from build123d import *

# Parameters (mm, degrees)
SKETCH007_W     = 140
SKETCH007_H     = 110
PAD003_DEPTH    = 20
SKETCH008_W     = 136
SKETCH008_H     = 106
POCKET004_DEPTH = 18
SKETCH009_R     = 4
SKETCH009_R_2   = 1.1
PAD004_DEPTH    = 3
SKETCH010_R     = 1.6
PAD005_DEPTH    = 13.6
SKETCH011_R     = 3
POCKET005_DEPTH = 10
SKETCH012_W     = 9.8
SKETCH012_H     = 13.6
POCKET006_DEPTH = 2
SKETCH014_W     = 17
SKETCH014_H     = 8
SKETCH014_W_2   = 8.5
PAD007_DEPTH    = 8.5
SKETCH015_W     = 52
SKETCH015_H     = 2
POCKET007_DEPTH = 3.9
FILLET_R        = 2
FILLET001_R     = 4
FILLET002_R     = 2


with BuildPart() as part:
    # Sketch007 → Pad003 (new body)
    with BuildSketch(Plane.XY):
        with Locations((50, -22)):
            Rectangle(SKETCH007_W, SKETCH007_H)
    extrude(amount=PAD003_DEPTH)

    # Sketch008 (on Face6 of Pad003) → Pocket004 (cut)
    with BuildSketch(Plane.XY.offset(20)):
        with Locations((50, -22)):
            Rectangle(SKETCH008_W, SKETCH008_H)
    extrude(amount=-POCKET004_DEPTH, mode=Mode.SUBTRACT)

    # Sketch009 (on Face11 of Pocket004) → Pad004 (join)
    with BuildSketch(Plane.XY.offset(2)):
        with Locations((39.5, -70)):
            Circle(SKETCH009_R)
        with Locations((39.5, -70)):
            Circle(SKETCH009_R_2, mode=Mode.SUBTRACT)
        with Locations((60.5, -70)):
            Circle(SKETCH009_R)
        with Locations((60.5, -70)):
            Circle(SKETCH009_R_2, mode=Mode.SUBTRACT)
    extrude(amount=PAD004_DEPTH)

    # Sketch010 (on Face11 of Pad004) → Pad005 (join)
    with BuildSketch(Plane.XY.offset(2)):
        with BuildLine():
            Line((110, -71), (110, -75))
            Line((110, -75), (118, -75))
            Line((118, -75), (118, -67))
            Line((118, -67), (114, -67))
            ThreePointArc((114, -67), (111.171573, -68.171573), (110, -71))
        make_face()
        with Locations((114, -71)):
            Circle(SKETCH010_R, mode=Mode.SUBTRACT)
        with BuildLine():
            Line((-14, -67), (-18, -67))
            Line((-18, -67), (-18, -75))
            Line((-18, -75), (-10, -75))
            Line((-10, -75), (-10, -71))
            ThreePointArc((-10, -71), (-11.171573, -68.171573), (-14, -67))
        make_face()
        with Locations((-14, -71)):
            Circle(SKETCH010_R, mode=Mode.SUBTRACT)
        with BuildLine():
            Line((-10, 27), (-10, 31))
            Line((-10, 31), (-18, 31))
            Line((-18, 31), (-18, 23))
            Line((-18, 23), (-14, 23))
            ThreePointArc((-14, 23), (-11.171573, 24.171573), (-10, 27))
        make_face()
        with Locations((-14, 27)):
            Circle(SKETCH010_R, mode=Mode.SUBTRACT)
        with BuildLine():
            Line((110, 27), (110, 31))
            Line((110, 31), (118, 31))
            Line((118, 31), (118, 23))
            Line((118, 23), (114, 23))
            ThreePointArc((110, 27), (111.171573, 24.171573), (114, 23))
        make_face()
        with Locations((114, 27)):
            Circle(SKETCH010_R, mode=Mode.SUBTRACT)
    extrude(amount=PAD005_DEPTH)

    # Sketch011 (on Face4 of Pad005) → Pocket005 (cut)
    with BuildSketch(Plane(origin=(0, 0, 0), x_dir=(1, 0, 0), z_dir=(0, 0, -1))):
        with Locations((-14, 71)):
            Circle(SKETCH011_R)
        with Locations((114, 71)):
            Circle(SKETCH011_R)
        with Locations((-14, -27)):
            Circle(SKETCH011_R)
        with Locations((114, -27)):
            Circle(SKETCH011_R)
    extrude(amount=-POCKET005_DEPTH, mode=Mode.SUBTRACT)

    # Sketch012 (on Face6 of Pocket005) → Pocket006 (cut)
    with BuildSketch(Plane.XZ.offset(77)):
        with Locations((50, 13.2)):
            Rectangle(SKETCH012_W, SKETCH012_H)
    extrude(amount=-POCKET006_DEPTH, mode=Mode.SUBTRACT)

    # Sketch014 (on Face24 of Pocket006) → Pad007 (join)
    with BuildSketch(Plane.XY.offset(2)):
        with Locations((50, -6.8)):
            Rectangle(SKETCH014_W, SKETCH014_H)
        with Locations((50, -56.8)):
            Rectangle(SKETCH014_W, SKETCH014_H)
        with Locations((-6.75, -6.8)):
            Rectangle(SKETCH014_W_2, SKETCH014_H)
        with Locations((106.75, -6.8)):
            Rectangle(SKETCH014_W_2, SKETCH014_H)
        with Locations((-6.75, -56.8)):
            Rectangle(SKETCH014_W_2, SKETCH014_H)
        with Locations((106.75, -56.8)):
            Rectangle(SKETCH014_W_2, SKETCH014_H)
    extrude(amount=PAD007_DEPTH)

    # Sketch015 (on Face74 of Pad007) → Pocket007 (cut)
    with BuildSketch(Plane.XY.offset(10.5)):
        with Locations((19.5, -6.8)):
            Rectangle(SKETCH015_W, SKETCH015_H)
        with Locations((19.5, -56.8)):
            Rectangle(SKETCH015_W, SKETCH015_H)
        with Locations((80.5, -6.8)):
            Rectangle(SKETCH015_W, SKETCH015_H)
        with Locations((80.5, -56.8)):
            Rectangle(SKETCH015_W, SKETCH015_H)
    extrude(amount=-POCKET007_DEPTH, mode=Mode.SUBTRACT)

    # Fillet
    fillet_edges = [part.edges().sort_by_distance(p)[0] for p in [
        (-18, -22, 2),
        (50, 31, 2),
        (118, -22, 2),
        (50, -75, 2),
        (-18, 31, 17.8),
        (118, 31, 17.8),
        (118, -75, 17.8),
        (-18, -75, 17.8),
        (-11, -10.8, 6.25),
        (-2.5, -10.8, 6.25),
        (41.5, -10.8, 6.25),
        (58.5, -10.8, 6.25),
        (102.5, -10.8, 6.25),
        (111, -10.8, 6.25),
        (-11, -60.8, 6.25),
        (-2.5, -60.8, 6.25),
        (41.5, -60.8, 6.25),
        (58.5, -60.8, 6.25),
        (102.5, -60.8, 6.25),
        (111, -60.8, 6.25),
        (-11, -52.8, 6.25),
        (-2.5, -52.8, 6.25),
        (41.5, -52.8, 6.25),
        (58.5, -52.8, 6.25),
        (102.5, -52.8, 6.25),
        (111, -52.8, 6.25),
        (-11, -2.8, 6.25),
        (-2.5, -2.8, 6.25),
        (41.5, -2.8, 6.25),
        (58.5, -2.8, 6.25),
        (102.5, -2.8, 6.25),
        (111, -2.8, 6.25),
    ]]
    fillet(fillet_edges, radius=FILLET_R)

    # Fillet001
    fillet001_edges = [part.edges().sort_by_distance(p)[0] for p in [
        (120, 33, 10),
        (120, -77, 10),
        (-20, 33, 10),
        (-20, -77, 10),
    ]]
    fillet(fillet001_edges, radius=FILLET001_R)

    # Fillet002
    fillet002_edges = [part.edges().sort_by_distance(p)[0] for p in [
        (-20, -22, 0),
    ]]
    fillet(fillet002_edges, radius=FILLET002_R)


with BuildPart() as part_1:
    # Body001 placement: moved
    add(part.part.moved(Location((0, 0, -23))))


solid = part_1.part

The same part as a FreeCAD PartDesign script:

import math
import FreeCAD as App
import Part
import Sketcher

V = App.Vector
Q = App.Units.Quantity


def edges_at(feature, points):
    """Names of the edges that pass closest to the given points."""
    edges = feature.Shape.Edges
    near = lambda p: min(range(len(edges)), key=lambda i: edges[i].distToShape(Part.Vertex(*p))[0])
    return sorted({f"Edge{near(p) + 1}" for p in points})

doc = App.newDocument("Part")
body = doc.addObject("PartDesign::Body", "Body")

# Sketch on XY plane
sketch1 = body.newObject("Sketcher::SketchObject", "Sketch")
sketch1.AttachmentSupport = (doc.getObject("XY_Plane"), [""])
sketch1.MapMode = "FlatFace"
sketch1.addGeometry(Part.LineSegment(V(-20, 33, 0), V(-20, -77, 0)), False)
sketch1.addGeometry(Part.LineSegment(V(-20, -77, 0), V(120, -77, 0)), False)
sketch1.addGeometry(Part.LineSegment(V(120, -77, 0), V(120, 33, 0)), False)
sketch1.addGeometry(Part.LineSegment(V(120, 33, 0), V(-20, 33, 0)), False)
sketch1.addConstraint(Sketcher.Constraint("Coincident", 0, 2, 1, 1))
sketch1.addConstraint(Sketcher.Constraint("Coincident", 1, 2, 2, 1))
sketch1.addConstraint(Sketcher.Constraint("Coincident", 2, 2, 3, 1))
sketch1.addConstraint(Sketcher.Constraint("Coincident", 3, 2, 0, 1))
sketch1.addConstraint(Sketcher.Constraint("Vertical", 0))
sketch1.addConstraint(Sketcher.Constraint("Horizontal", 1))
sketch1.addConstraint(Sketcher.Constraint("Vertical", 2))
sketch1.addConstraint(Sketcher.Constraint("Horizontal", 3))
sketch1.addConstraint(Sketcher.Constraint("DistanceX", 1, 1, 1, 2, Q("140 mm")))
sketch1.addConstraint(Sketcher.Constraint("DistanceY", 0, 2, 0, 1, Q("110 mm")))
sketch1.addConstraint(Sketcher.Constraint("DistanceX", 0, 2, -1, 1, Q("20 mm")))
sketch1.addConstraint(Sketcher.Constraint("DistanceY", 0, 2, -1, 1, Q("77 mm")))
pad1 = body.newObject("PartDesign::Pad", "Pad")
pad1.Profile = sketch1
pad1.Length = 20

# Sketch on XY plane
sketch2 = body.newObject("Sketcher::SketchObject", "Sketch001")
sketch2.AttachmentSupport = (doc.getObject("XY_Plane"), [""])
sketch2.MapMode = "FlatFace"
sketch2.AttachmentOffset = App.Placement(V(0, 0, 20), App.Rotation())
sketch2.addGeometry(Part.LineSegment(V(-18, 31, 0), V(-18, -75, 0)), False)
sketch2.addGeometry(Part.LineSegment(V(-18, -75, 0), V(118, -75, 0)), False)
sketch2.addGeometry(Part.LineSegment(V(118, -75, 0), V(118, 31, 0)), False)
sketch2.addGeometry(Part.LineSegment(V(118, 31, 0), V(-18, 31, 0)), False)
sketch2.addConstraint(Sketcher.Constraint("Coincident", 0, 2, 1, 1))
sketch2.addConstraint(Sketcher.Constraint("Coincident", 1, 2, 2, 1))
sketch2.addConstraint(Sketcher.Constraint("Coincident", 2, 2, 3, 1))
sketch2.addConstraint(Sketcher.Constraint("Coincident", 3, 2, 0, 1))
sketch2.addConstraint(Sketcher.Constraint("Vertical", 0))
sketch2.addConstraint(Sketcher.Constraint("Horizontal", 1))
sketch2.addConstraint(Sketcher.Constraint("Vertical", 2))
sketch2.addConstraint(Sketcher.Constraint("Horizontal", 3))
sketch2.addConstraint(Sketcher.Constraint("DistanceX", 1, 1, 1, 2, Q("136 mm")))
sketch2.addConstraint(Sketcher.Constraint("DistanceY", 0, 2, 0, 1, Q("106 mm")))
sketch2.addConstraint(Sketcher.Constraint("DistanceX", 0, 2, -1, 1, Q("18 mm")))
sketch2.addConstraint(Sketcher.Constraint("DistanceY", 0, 2, -1, 1, Q("75 mm")))
pocket1 = body.newObject("PartDesign::Pocket", "Pocket")
pocket1.Profile = sketch2
pocket1.Length = 18

# Sketch on XY plane
sketch3 = body.newObject("Sketcher::SketchObject", "Sketch002")
sketch3.AttachmentSupport = (doc.getObject("XY_Plane"), [""])
sketch3.MapMode = "FlatFace"
sketch3.AttachmentOffset = App.Placement(V(0, 0, 2), App.Rotation())
sketch3.addGeometry(Part.Circle(V(39.5, -70, 0), V(0, 0, 1), 4), False)
sketch3.addGeometry(Part.Circle(V(39.5, -70, 0), V(0, 0, 1), 1.1), False)
sketch3.addGeometry(Part.Circle(V(60.5, -70, 0), V(0, 0, 1), 4), False)
sketch3.addGeometry(Part.Circle(V(60.5, -70, 0), V(0, 0, 1), 1.1), False)
sketch3.addConstraint(Sketcher.Constraint("Coincident", 1, 3, 0, 3))
sketch3.addConstraint(Sketcher.Constraint("Coincident", 3, 3, 2, 3))
sketch3.addConstraint(Sketcher.Constraint("Equal", 0, 2))
sketch3.addConstraint(Sketcher.Constraint("Equal", 1, 3))
sketch3.addConstraint(Sketcher.Constraint("Horizontal", 1, 3, 2, 3))
sketch3.addConstraint(Sketcher.Constraint("Diameter", 0, Q("8 mm")))
sketch3.addConstraint(Sketcher.Constraint("Diameter", 1, Q("2.2 mm")))
sketch3.addConstraint(Sketcher.Constraint("DistanceY", 0, 3, -1, 1, Q("70 mm")))
sketch3.addConstraint(Sketcher.Constraint("DistanceX", 0, 3, 2, 3, Q("21 mm")))
sketch3.addConstraint(Sketcher.Constraint("DistanceX", -1, 1, 0, 3, Q("39.5 mm")))
pad2 = body.newObject("PartDesign::Pad", "Pad001")
pad2.Profile = sketch3
pad2.Length = 3

# Sketch on XY plane
sketch4 = body.newObject("Sketcher::SketchObject", "Sketch003")
sketch4.AttachmentSupport = (doc.getObject("XY_Plane"), [""])
sketch4.MapMode = "FlatFace"
sketch4.AttachmentOffset = App.Placement(V(0, 0, 2), App.Rotation())
sketch4.addGeometry(Part.LineSegment(V(110, -71, 0), V(110, -75, 0)), False)
sketch4.addGeometry(Part.LineSegment(V(110, -75, 0), V(118, -75, 0)), False)
sketch4.addGeometry(Part.LineSegment(V(118, -75, 0), V(118, -67, 0)), False)
sketch4.addGeometry(Part.LineSegment(V(118, -67, 0), V(114, -67, 0)), False)
sketch4.addGeometry(Part.ArcOfCircle(Part.Circle(V(114, -71, 0), V(0, 0, 1), 4), math.radians(90.000006), math.radians(179.999994)), False)
sketch4.addGeometry(Part.Circle(V(114, -71, 0), V(0, 0, 1), 1.6), False)
sketch4.addGeometry(Part.LineSegment(V(-14, -67, 0), V(-18, -67, 0)), False)
sketch4.addGeometry(Part.LineSegment(V(-18, -67, 0), V(-18, -75, 0)), False)
sketch4.addGeometry(Part.LineSegment(V(-18, -75, 0), V(-10, -75, 0)), False)
sketch4.addGeometry(Part.LineSegment(V(-10, -75, 0), V(-10, -71, 0)), False)
sketch4.addGeometry(Part.ArcOfCircle(Part.Circle(V(-14, -71, 0), V(0, 0, 1), 4), math.radians(0.000006), math.radians(89.999994)), False)
sketch4.addGeometry(Part.Circle(V(-14, -71, 0), V(0, 0, 1), 1.6), False)
sketch4.addGeometry(Part.LineSegment(V(-10, 27, 0), V(-10, 31, 0)), False)
sketch4.addGeometry(Part.LineSegment(V(-10, 31, 0), V(-18, 31, 0)), False)
sketch4.addGeometry(Part.LineSegment(V(-18, 31, 0), V(-18, 23, 0)), False)
sketch4.addGeometry(Part.LineSegment(V(-18, 23, 0), V(-14, 23, 0)), False)
sketch4.addGeometry(Part.ArcOfCircle(Part.Circle(V(-14, 27, 0), V(0, 0, 1), 4), math.radians(-89.999994), math.radians(-0.000006)), False)
sketch4.addGeometry(Part.Circle(V(-14, 27, 0), V(0, 0, 1), 1.6), False)
sketch4.addGeometry(Part.LineSegment(V(110, 31, 0), V(110, 27, 0)), False)
sketch4.addGeometry(Part.ArcOfCircle(Part.Circle(V(114, 27, 0), V(0, 0, 1), 4), math.radians(-179.999994), math.radians(-90.000006)), False)
sketch4.addGeometry(Part.LineSegment(V(114, 23, 0), V(118, 23, 0)), False)
sketch4.addGeometry(Part.LineSegment(V(118, 23, 0), V(118, 31, 0)), False)
sketch4.addGeometry(Part.LineSegment(V(118, 31, 0), V(110, 31, 0)), False)
sketch4.addGeometry(Part.Circle(V(114, 27, 0), V(0, 0, 1), 1.6), False)
sketch4.addConstraint(Sketcher.Constraint("Coincident", 0, 2, 1, 1))
sketch4.addConstraint(Sketcher.Constraint("Coincident", 1, 2, 2, 1))
sketch4.addConstraint(Sketcher.Constraint("Coincident", 2, 2, 3, 1))
sketch4.addConstraint(Sketcher.Constraint("Tangent", 3, 2, 4, 1))
sketch4.addConstraint(Sketcher.Constraint("Tangent", 4, 2, 0, 1))
sketch4.addConstraint(Sketcher.Constraint("Coincident", 6, 2, 7, 1))
sketch4.addConstraint(Sketcher.Constraint("Coincident", 7, 2, 8, 1))
sketch4.addConstraint(Sketcher.Constraint("Coincident", 8, 2, 9, 1))
sketch4.addConstraint(Sketcher.Constraint("Tangent", 9, 2, 10, 1))
sketch4.addConstraint(Sketcher.Constraint("Tangent", 10, 2, 6, 1))
sketch4.addConstraint(Sketcher.Constraint("Coincident", 12, 2, 13, 1))
sketch4.addConstraint(Sketcher.Constraint("Coincident", 13, 2, 14, 1))
sketch4.addConstraint(Sketcher.Constraint("Coincident", 14, 2, 15, 1))
sketch4.addConstraint(Sketcher.Constraint("Tangent", 15, 2, 16, 1))
sketch4.addConstraint(Sketcher.Constraint("Tangent", 16, 2, 12, 1))
sketch4.addConstraint(Sketcher.Constraint("Tangent", 18, 2, 19, 1))
sketch4.addConstraint(Sketcher.Constraint("Tangent", 19, 2, 20, 1))
sketch4.addConstraint(Sketcher.Constraint("Coincident", 20, 2, 21, 1))
sketch4.addConstraint(Sketcher.Constraint("Coincident", 21, 2, 22, 1))
sketch4.addConstraint(Sketcher.Constraint("Coincident", 22, 2, 18, 1))
sketch4.addConstraint(Sketcher.Constraint("Vertical", 0))
sketch4.addConstraint(Sketcher.Constraint("Horizontal", 1))
sketch4.addConstraint(Sketcher.Constraint("Vertical", 2))
sketch4.addConstraint(Sketcher.Constraint("Horizontal", 3))
sketch4.addConstraint(Sketcher.Constraint("Horizontal", 6))
sketch4.addConstraint(Sketcher.Constraint("Vertical", 7))
sketch4.addConstraint(Sketcher.Constraint("Horizontal", 8))
sketch4.addConstraint(Sketcher.Constraint("Vertical", 9))
sketch4.addConstraint(Sketcher.Constraint("Vertical", 12))
sketch4.addConstraint(Sketcher.Constraint("Horizontal", 13))
sketch4.addConstraint(Sketcher.Constraint("Vertical", 14))
sketch4.addConstraint(Sketcher.Constraint("Horizontal", 15))
sketch4.addConstraint(Sketcher.Constraint("Vertical", 18))
sketch4.addConstraint(Sketcher.Constraint("Horizontal", 20))
sketch4.addConstraint(Sketcher.Constraint("Vertical", 21))
sketch4.addConstraint(Sketcher.Constraint("Horizontal", 22))
sketch4.addConstraint(Sketcher.Constraint("Coincident", 5, 3, 4, 3))
sketch4.addConstraint(Sketcher.Constraint("Coincident", 11, 3, 10, 3))
sketch4.addConstraint(Sketcher.Constraint("Coincident", 17, 3, 16, 3))
sketch4.addConstraint(Sketcher.Constraint("Coincident", 23, 3, 19, 3))
sketch4.addConstraint(Sketcher.Constraint("Equal", 4, 10))
sketch4.addConstraint(Sketcher.Constraint("Equal", 5, 11))
sketch4.addConstraint(Sketcher.Constraint("Equal", 10, 16))
sketch4.addConstraint(Sketcher.Constraint("Equal", 11, 17))
sketch4.addConstraint(Sketcher.Constraint("Equal", 16, 19))
sketch4.addConstraint(Sketcher.Constraint("Equal", 17, 23))
sketch4.addConstraint(Sketcher.Constraint("Horizontal", 5, 3, 10, 3))
sketch4.addConstraint(Sketcher.Constraint("Horizontal", 17, 3, 19, 3))
sketch4.addConstraint(Sketcher.Constraint("Horizontal", 1, 2, 7, 2))
sketch4.addConstraint(Sketcher.Constraint("Horizontal", 13, 2, 21, 2))
sketch4.addConstraint(Sketcher.Constraint("Vertical", 11, 3, 16, 3))
sketch4.addConstraint(Sketcher.Constraint("Vertical", 5, 3, 19, 3))
sketch4.addConstraint(Sketcher.Constraint("Vertical", 7, 2, 13, 2))
sketch4.addConstraint(Sketcher.Constraint("Vertical", 2, 2, 20, 2))
sketch4.addConstraint(Sketcher.Constraint("Equal", 3, 6))
sketch4.addConstraint(Sketcher.Constraint("Equal", 20, 0))
sketch4.addConstraint(Sketcher.Constraint("Equal", 9, 12))
sketch4.addConstraint(Sketcher.Constraint("Radius", 4, Q("4 mm")))
sketch4.addConstraint(Sketcher.Constraint("Diameter", 5, Q("3.2 mm")))
sketch4.addConstraint(Sketcher.Constraint("DistanceX", 1, 1, 1, 2, Q("8 mm")))
sketch4.addConstraint(Sketcher.Constraint("DistanceX", -1, 1, 4, 3, Q("114 mm")))
sketch4.addConstraint(Sketcher.Constraint("DistanceY", 4, 3, -1, 1, Q("71 mm")))
sketch4.addConstraint(Sketcher.Constraint("DistanceX", 10, 3, -1, 1, Q("14 mm")))
sketch4.addConstraint(Sketcher.Constraint("DistanceY", -1, 1, 16, 3, Q("27 mm")))
pad3 = body.newObject("PartDesign::Pad", "Pad002")
pad3.Profile = sketch4
pad3.Length = 13.6

# Sketch on XY plane
sketch5 = body.newObject("Sketcher::SketchObject", "Sketch004")
sketch5.AttachmentSupport = (doc.getObject("XY_Plane"), [""])
sketch5.MapMode = "FlatFace"
sketch5.addGeometry(Part.Circle(V(-14, -71, 0), V(0, 0, 1), 3), False)
sketch5.addGeometry(Part.Circle(V(114, -71, 0), V(0, 0, 1), 3), False)
sketch5.addGeometry(Part.Circle(V(-14, 27, 0), V(0, 0, 1), 3), False)
sketch5.addGeometry(Part.Circle(V(114, 27, 0), V(0, 0, 1), 3), False)
sketch5.addConstraint(Sketcher.Constraint("Equal", 0, 1))
sketch5.addConstraint(Sketcher.Constraint("Equal", 1, 2))
sketch5.addConstraint(Sketcher.Constraint("Equal", 2, 3))
sketch5.addConstraint(Sketcher.Constraint("Horizontal", 0, 3, 1, 3))
sketch5.addConstraint(Sketcher.Constraint("Horizontal", 2, 3, 3, 3))
sketch5.addConstraint(Sketcher.Constraint("Vertical", 0, 3, 2, 3))
sketch5.addConstraint(Sketcher.Constraint("Vertical", 1, 3, 3, 3))
sketch5.addConstraint(Sketcher.Constraint("Diameter", 0, Q("6 mm")))
sketch5.addConstraint(Sketcher.Constraint("DistanceX", 0, 3, -1, 1, Q("14 mm")))
sketch5.addConstraint(Sketcher.Constraint("DistanceY", 0, 3, -1, 1, Q("71 mm")))
sketch5.addConstraint(Sketcher.Constraint("DistanceX", -1, 1, 1, 3, Q("114 mm")))
sketch5.addConstraint(Sketcher.Constraint("DistanceY", -1, 1, 2, 3, Q("27 mm")))
pocket2 = body.newObject("PartDesign::Pocket", "Pocket001")
pocket2.Profile = sketch5
pocket2.Length = 10
pocket2.Reversed = True

# Sketch on XZ plane
sketch6 = body.newObject("Sketcher::SketchObject", "Sketch005")
sketch6.AttachmentSupport = (doc.getObject("XZ_Plane"), [""])
sketch6.MapMode = "FlatFace"
sketch6.AttachmentOffset = App.Placement(V(0, 0, 77), App.Rotation())
sketch6.addGeometry(Part.LineSegment(V(45.1, 20, 0), V(45.1, 6.4, 0)), False)
sketch6.addGeometry(Part.LineSegment(V(45.1, 6.4, 0), V(54.9, 6.4, 0)), False)
sketch6.addGeometry(Part.LineSegment(V(54.9, 6.4, 0), V(54.9, 20, 0)), False)
sketch6.addGeometry(Part.LineSegment(V(54.9, 20, 0), V(45.1, 20, 0)), False)
sketch6.addConstraint(Sketcher.Constraint("Coincident", 0, 2, 1, 1))
sketch6.addConstraint(Sketcher.Constraint("Coincident", 1, 2, 2, 1))
sketch6.addConstraint(Sketcher.Constraint("Coincident", 2, 2, 3, 1))
sketch6.addConstraint(Sketcher.Constraint("Coincident", 3, 2, 0, 1))
sketch6.addConstraint(Sketcher.Constraint("Vertical", 0))
sketch6.addConstraint(Sketcher.Constraint("Horizontal", 1))
sketch6.addConstraint(Sketcher.Constraint("Vertical", 2))
sketch6.addConstraint(Sketcher.Constraint("Horizontal", 3))
sketch6.addConstraint(Sketcher.Constraint("DistanceX", 1, 1, 1, 2, Q("9.8 mm")))
sketch6.addConstraint(Sketcher.Constraint("DistanceY", 0, 2, 0, 1, Q("13.6 mm")))
sketch6.addConstraint(Sketcher.Constraint("DistanceY", -1, 1, 2, 2, Q("20 mm")))
sketch6.addConstraint(Sketcher.Constraint("DistanceX", -1, 1, 0, 2, Q("45.1 mm")))
pocket3 = body.newObject("PartDesign::Pocket", "Pocket002")
pocket3.Profile = sketch6
pocket3.Length = 2

# Sketch on XY plane
sketch7 = body.newObject("Sketcher::SketchObject", "Sketch006")
sketch7.AttachmentSupport = (doc.getObject("XY_Plane"), [""])
sketch7.MapMode = "FlatFace"
sketch7.AttachmentOffset = App.Placement(V(0, 0, 2), App.Rotation())
sketch7.addGeometry(Part.LineSegment(V(41.5, -2.8, 0), V(41.5, -10.8, 0)), False)
sketch7.addGeometry(Part.LineSegment(V(41.5, -10.8, 0), V(58.5, -10.8, 0)), False)
sketch7.addGeometry(Part.LineSegment(V(58.5, -10.8, 0), V(58.5, -2.8, 0)), False)
sketch7.addGeometry(Part.LineSegment(V(58.5, -2.8, 0), V(41.5, -2.8, 0)), False)
sketch7.addGeometry(Part.LineSegment(V(41.5, -52.8, 0), V(41.5, -60.8, 0)), False)
sketch7.addGeometry(Part.LineSegment(V(41.5, -60.8, 0), V(58.5, -60.8, 0)), False)
sketch7.addGeometry(Part.LineSegment(V(58.5, -60.8, 0), V(58.5, -52.8, 0)), False)
sketch7.addGeometry(Part.LineSegment(V(58.5, -52.8, 0), V(41.5, -52.8, 0)), False)
sketch7.addGeometry(Part.LineSegment(V(-11, -2.8, 0), V(-11, -10.8, 0)), False)
sketch7.addGeometry(Part.LineSegment(V(-11, -10.8, 0), V(-2.5, -10.8, 0)), False)
sketch7.addGeometry(Part.LineSegment(V(-2.5, -10.8, 0), V(-2.5, -2.8, 0)), False)
sketch7.addGeometry(Part.LineSegment(V(-2.5, -2.8, 0), V(-11, -2.8, 0)), False)
sketch7.addGeometry(Part.LineSegment(V(102.5, -2.8, 0), V(102.5, -10.8, 0)), False)
sketch7.addGeometry(Part.LineSegment(V(102.5, -10.8, 0), V(111, -10.8, 0)), False)
sketch7.addGeometry(Part.LineSegment(V(111, -10.8, 0), V(111, -2.8, 0)), False)
sketch7.addGeometry(Part.LineSegment(V(111, -2.8, 0), V(102.5, -2.8, 0)), False)
sketch7.addGeometry(Part.LineSegment(V(-11, -52.8, 0), V(-11, -60.8, 0)), False)
sketch7.addGeometry(Part.LineSegment(V(-11, -60.8, 0), V(-2.5, -60.8, 0)), False)
sketch7.addGeometry(Part.LineSegment(V(-2.5, -60.8, 0), V(-2.5, -52.8, 0)), False)
sketch7.addGeometry(Part.LineSegment(V(-2.5, -52.8, 0), V(-11, -52.8, 0)), False)
sketch7.addGeometry(Part.LineSegment(V(102.5, -52.8, 0), V(102.5, -60.8, 0)), False)
sketch7.addGeometry(Part.LineSegment(V(102.5, -60.8, 0), V(111, -60.8, 0)), False)
sketch7.addGeometry(Part.LineSegment(V(111, -60.8, 0), V(111, -52.8, 0)), False)
sketch7.addGeometry(Part.LineSegment(V(111, -52.8, 0), V(102.5, -52.8, 0)), False)
sketch7.addConstraint(Sketcher.Constraint("Coincident", 0, 2, 1, 1))
sketch7.addConstraint(Sketcher.Constraint("Coincident", 1, 2, 2, 1))
sketch7.addConstraint(Sketcher.Constraint("Coincident", 2, 2, 3, 1))
sketch7.addConstraint(Sketcher.Constraint("Coincident", 3, 2, 0, 1))
sketch7.addConstraint(Sketcher.Constraint("Coincident", 4, 2, 5, 1))
sketch7.addConstraint(Sketcher.Constraint("Coincident", 5, 2, 6, 1))
sketch7.addConstraint(Sketcher.Constraint("Coincident", 6, 2, 7, 1))
sketch7.addConstraint(Sketcher.Constraint("Coincident", 7, 2, 4, 1))
sketch7.addConstraint(Sketcher.Constraint("Coincident", 8, 2, 9, 1))
sketch7.addConstraint(Sketcher.Constraint("Coincident", 9, 2, 10, 1))
sketch7.addConstraint(Sketcher.Constraint("Coincident", 10, 2, 11, 1))
sketch7.addConstraint(Sketcher.Constraint("Coincident", 11, 2, 8, 1))
sketch7.addConstraint(Sketcher.Constraint("Coincident", 12, 2, 13, 1))
sketch7.addConstraint(Sketcher.Constraint("Coincident", 13, 2, 14, 1))
sketch7.addConstraint(Sketcher.Constraint("Coincident", 14, 2, 15, 1))
sketch7.addConstraint(Sketcher.Constraint("Coincident", 15, 2, 12, 1))
sketch7.addConstraint(Sketcher.Constraint("Coincident", 16, 2, 17, 1))
sketch7.addConstraint(Sketcher.Constraint("Coincident", 17, 2, 18, 1))
sketch7.addConstraint(Sketcher.Constraint("Coincident", 18, 2, 19, 1))
sketch7.addConstraint(Sketcher.Constraint("Coincident", 19, 2, 16, 1))
sketch7.addConstraint(Sketcher.Constraint("Coincident", 20, 2, 21, 1))
sketch7.addConstraint(Sketcher.Constraint("Coincident", 21, 2, 22, 1))
sketch7.addConstraint(Sketcher.Constraint("Coincident", 22, 2, 23, 1))
sketch7.addConstraint(Sketcher.Constraint("Coincident", 23, 2, 20, 1))
sketch7.addConstraint(Sketcher.Constraint("Vertical", 0))
sketch7.addConstraint(Sketcher.Constraint("Horizontal", 1))
sketch7.addConstraint(Sketcher.Constraint("Vertical", 2))
sketch7.addConstraint(Sketcher.Constraint("Horizontal", 3))
sketch7.addConstraint(Sketcher.Constraint("Vertical", 4))
sketch7.addConstraint(Sketcher.Constraint("Horizontal", 5))
sketch7.addConstraint(Sketcher.Constraint("Vertical", 6))
sketch7.addConstraint(Sketcher.Constraint("Horizontal", 7))
sketch7.addConstraint(Sketcher.Constraint("Vertical", 8))
sketch7.addConstraint(Sketcher.Constraint("Horizontal", 9))
sketch7.addConstraint(Sketcher.Constraint("Vertical", 10))
sketch7.addConstraint(Sketcher.Constraint("Horizontal", 11))
sketch7.addConstraint(Sketcher.Constraint("Vertical", 12))
sketch7.addConstraint(Sketcher.Constraint("Horizontal", 13))
sketch7.addConstraint(Sketcher.Constraint("Vertical", 14))
sketch7.addConstraint(Sketcher.Constraint("Horizontal", 15))
sketch7.addConstraint(Sketcher.Constraint("Vertical", 16))
sketch7.addConstraint(Sketcher.Constraint("Horizontal", 17))
sketch7.addConstraint(Sketcher.Constraint("Vertical", 18))
sketch7.addConstraint(Sketcher.Constraint("Horizontal", 19))
sketch7.addConstraint(Sketcher.Constraint("Vertical", 20))
sketch7.addConstraint(Sketcher.Constraint("Horizontal", 21))
sketch7.addConstraint(Sketcher.Constraint("Vertical", 22))
sketch7.addConstraint(Sketcher.Constraint("Horizontal", 23))
sketch7.addConstraint(Sketcher.Constraint("Horizontal", 1, 2, 8, 2))
sketch7.addConstraint(Sketcher.Constraint("Horizontal", 3, 2, 10, 2))
sketch7.addConstraint(Sketcher.Constraint("Horizontal", 9, 2, 12, 2))
sketch7.addConstraint(Sketcher.Constraint("Horizontal", 11, 2, 14, 2))
sketch7.addConstraint(Sketcher.Constraint("Horizontal", 5, 2, 16, 2))
sketch7.addConstraint(Sketcher.Constraint("Horizontal", 7, 2, 18, 2))
sketch7.addConstraint(Sketcher.Constraint("Horizontal", 17, 2, 20, 2))
sketch7.addConstraint(Sketcher.Constraint("Horizontal", 19, 2, 22, 2))
sketch7.addConstraint(Sketcher.Constraint("Vertical", 3, 2, 4, 2))
sketch7.addConstraint(Sketcher.Constraint("Vertical", 2, 2, 5, 2))
sketch7.addConstraint(Sketcher.Constraint("Vertical", 11, 2, 16, 2))
sketch7.addConstraint(Sketcher.Constraint("Vertical", 10, 2, 17, 2))
sketch7.addConstraint(Sketcher.Constraint("Vertical", 15, 2, 20, 2))
sketch7.addConstraint(Sketcher.Constraint("Vertical", 14, 2, 21, 2))
sketch7.addConstraint(Sketcher.Constraint("Equal", 11, 13))
sketch7.addConstraint(Sketcher.Constraint("Equal", 2, 4))
sketch7.addConstraint(Sketcher.Constraint("DistanceX", 1, 1, 1, 2, Q("17 mm")))
sketch7.addConstraint(Sketcher.Constraint("DistanceY", 0, 2, 0, 1, Q("8 mm")))
sketch7.addConstraint(Sketcher.Constraint("DistanceX", 9, 1, 9, 2, Q("8.5 mm")))
sketch7.addConstraint(Sketcher.Constraint("DistanceX", 8, 2, -1, 1, Q("11 mm")))
sketch7.addConstraint(Sketcher.Constraint("DistanceX", -1, 1, 13, 2, Q("111 mm")))
sketch7.addConstraint(Sketcher.Constraint("DistanceY", 4, 2, 0, 2, Q("50 mm")))
sketch7.addConstraint(Sketcher.Constraint("DistanceX", 9, 2, 0, 2, Q("44 mm")))
sketch7.addConstraint(Sketcher.Constraint("DistanceY", 0, 2, -1, 1, Q("10.8 mm")))
pad4 = body.newObject("PartDesign::Pad", "Pad003")
pad4.Profile = sketch7
pad4.Length = 8.5

# Sketch on XY plane
sketch8 = body.newObject("Sketcher::SketchObject", "Sketch007")
sketch8.AttachmentSupport = (doc.getObject("XY_Plane"), [""])
sketch8.MapMode = "FlatFace"
sketch8.AttachmentOffset = App.Placement(V(0, 0, 10.5), App.Rotation())
sketch8.addGeometry(Part.LineSegment(V(-6.5, -5.8, 0), V(-6.5, -7.8, 0)), False)
sketch8.addGeometry(Part.LineSegment(V(-6.5, -7.8, 0), V(45.5, -7.8, 0)), False)
sketch8.addGeometry(Part.LineSegment(V(45.5, -7.8, 0), V(45.5, -5.8, 0)), False)
sketch8.addGeometry(Part.LineSegment(V(45.5, -5.8, 0), V(-6.5, -5.8, 0)), False)
sketch8.addGeometry(Part.LineSegment(V(-6.5, -55.8, 0), V(-6.5, -57.8, 0)), False)
sketch8.addGeometry(Part.LineSegment(V(-6.5, -57.8, 0), V(45.5, -57.8, 0)), False)
sketch8.addGeometry(Part.LineSegment(V(45.5, -57.8, 0), V(45.5, -55.8, 0)), False)
sketch8.addGeometry(Part.LineSegment(V(45.5, -55.8, 0), V(-6.5, -55.8, 0)), False)
sketch8.addGeometry(Part.LineSegment(V(54.5, -5.8, 0), V(54.5, -7.8, 0)), False)
sketch8.addGeometry(Part.LineSegment(V(54.5, -7.8, 0), V(106.5, -7.8, 0)), False)
sketch8.addGeometry(Part.LineSegment(V(106.5, -7.8, 0), V(106.5, -5.8, 0)), False)
sketch8.addGeometry(Part.LineSegment(V(106.5, -5.8, 0), V(54.5, -5.8, 0)), False)
sketch8.addGeometry(Part.LineSegment(V(54.5, -55.8, 0), V(54.5, -57.8, 0)), False)
sketch8.addGeometry(Part.LineSegment(V(54.5, -57.8, 0), V(106.5, -57.8, 0)), False)
sketch8.addGeometry(Part.LineSegment(V(106.5, -57.8, 0), V(106.5, -55.8, 0)), False)
sketch8.addGeometry(Part.LineSegment(V(106.5, -55.8, 0), V(54.5, -55.8, 0)), False)
sketch8.addConstraint(Sketcher.Constraint("Coincident", 0, 2, 1, 1))
sketch8.addConstraint(Sketcher.Constraint("Coincident", 1, 2, 2, 1))
sketch8.addConstraint(Sketcher.Constraint("Coincident", 2, 2, 3, 1))
sketch8.addConstraint(Sketcher.Constraint("Coincident", 3, 2, 0, 1))
sketch8.addConstraint(Sketcher.Constraint("Coincident", 4, 2, 5, 1))
sketch8.addConstraint(Sketcher.Constraint("Coincident", 5, 2, 6, 1))
sketch8.addConstraint(Sketcher.Constraint("Coincident", 6, 2, 7, 1))
sketch8.addConstraint(Sketcher.Constraint("Coincident", 7, 2, 4, 1))
sketch8.addConstraint(Sketcher.Constraint("Coincident", 8, 2, 9, 1))
sketch8.addConstraint(Sketcher.Constraint("Coincident", 9, 2, 10, 1))
sketch8.addConstraint(Sketcher.Constraint("Coincident", 10, 2, 11, 1))
sketch8.addConstraint(Sketcher.Constraint("Coincident", 11, 2, 8, 1))
sketch8.addConstraint(Sketcher.Constraint("Coincident", 12, 2, 13, 1))
sketch8.addConstraint(Sketcher.Constraint("Coincident", 13, 2, 14, 1))
sketch8.addConstraint(Sketcher.Constraint("Coincident", 14, 2, 15, 1))
sketch8.addConstraint(Sketcher.Constraint("Coincident", 15, 2, 12, 1))
sketch8.addConstraint(Sketcher.Constraint("Vertical", 0))
sketch8.addConstraint(Sketcher.Constraint("Horizontal", 1))
sketch8.addConstraint(Sketcher.Constraint("Vertical", 2))
sketch8.addConstraint(Sketcher.Constraint("Horizontal", 3))
sketch8.addConstraint(Sketcher.Constraint("Vertical", 4))
sketch8.addConstraint(Sketcher.Constraint("Horizontal", 5))
sketch8.addConstraint(Sketcher.Constraint("Vertical", 6))
sketch8.addConstraint(Sketcher.Constraint("Horizontal", 7))
sketch8.addConstraint(Sketcher.Constraint("Vertical", 8))
sketch8.addConstraint(Sketcher.Constraint("Horizontal", 9))
sketch8.addConstraint(Sketcher.Constraint("Vertical", 10))
sketch8.addConstraint(Sketcher.Constraint("Horizontal", 11))
sketch8.addConstraint(Sketcher.Constraint("Vertical", 12))
sketch8.addConstraint(Sketcher.Constraint("Horizontal", 13))
sketch8.addConstraint(Sketcher.Constraint("Vertical", 14))
sketch8.addConstraint(Sketcher.Constraint("Horizontal", 15))
sketch8.addConstraint(Sketcher.Constraint("Horizontal", 1, 2, 8, 2))
sketch8.addConstraint(Sketcher.Constraint("Horizontal", 3, 2, 10, 2))
sketch8.addConstraint(Sketcher.Constraint("Horizontal", 5, 2, 12, 2))
sketch8.addConstraint(Sketcher.Constraint("Horizontal", 7, 2, 14, 2))
sketch8.addConstraint(Sketcher.Constraint("Vertical", 3, 2, 4, 2))
sketch8.addConstraint(Sketcher.Constraint("Vertical", 2, 2, 5, 2))
sketch8.addConstraint(Sketcher.Constraint("Vertical", 11, 2, 12, 2))
sketch8.addConstraint(Sketcher.Constraint("Vertical", 10, 2, 13, 2))
sketch8.addConstraint(Sketcher.Constraint("Equal", 7, 9))
sketch8.addConstraint(Sketcher.Constraint("Equal", 2, 4))
sketch8.addConstraint(Sketcher.Constraint("DistanceX", 1, 1, 1, 2, Q("52 mm")))
sketch8.addConstraint(Sketcher.Constraint("DistanceY", 0, 2, 0, 1, Q("2 mm")))
sketch8.addConstraint(Sketcher.Constraint("DistanceY", 4, 2, 0, 2, Q("50 mm")))
sketch8.addConstraint(Sketcher.Constraint("DistanceX", 1, 2, 8, 2, Q("9 mm")))
sketch8.addConstraint(Sketcher.Constraint("DistanceX", 0, 2, -1, 1, Q("6.5 mm")))
sketch8.addConstraint(Sketcher.Constraint("DistanceY", 0, 2, -1, 1, Q("7.8 mm")))
pocket4 = body.newObject("PartDesign::Pocket", "Pocket003")
pocket4.Profile = sketch8
pocket4.Length = 3.9
doc.recompute()

fillet = body.newObject("PartDesign::Fillet", "Fillet")
fillet.Base = (pocket4, edges_at(pocket4, [
    (-18, -22, 2),
    (50, 31, 2),
    (118, -22, 2),
    (50, -75, 2),
    (-18, 31, 17.8),
    (118, 31, 17.8),
    (118, -75, 17.8),
    (-18, -75, 17.8),
    (-11, -10.8, 6.25),
    (-2.5, -10.8, 6.25),
    (41.5, -10.8, 6.25),
    (58.5, -10.8, 6.25),
    (102.5, -10.8, 6.25),
    (111, -10.8, 6.25),
    (-11, -60.8, 6.25),
    (-2.5, -60.8, 6.25),
    (41.5, -60.8, 6.25),
    (58.5, -60.8, 6.25),
    (102.5, -60.8, 6.25),
    (111, -60.8, 6.25),
    (-11, -52.8, 6.25),
    (-2.5, -52.8, 6.25),
    (41.5, -52.8, 6.25),
    (58.5, -52.8, 6.25),
    (102.5, -52.8, 6.25),
    (111, -52.8, 6.25),
    (-11, -2.8, 6.25),
    (-2.5, -2.8, 6.25),
    (41.5, -2.8, 6.25),
    (58.5, -2.8, 6.25),
    (102.5, -2.8, 6.25),
    (111, -2.8, 6.25),
]))
fillet.Radius = 2
doc.recompute()

fillet2 = body.newObject("PartDesign::Fillet", "Fillet001")
fillet2.Base = (fillet, edges_at(fillet, [
    (120, 33, 10),
    (120, -77, 10),
    (-20, 33, 10),
    (-20, -77, 10),
]))
fillet2.Radius = 4
doc.recompute()

fillet3 = body.newObject("PartDesign::Fillet", "Fillet002")
fillet3.Base = (fillet2, edges_at(fillet2, [(-20, -22, 0)]))
fillet3.Radius = 2
body2 = doc.addObject("PartDesign::Body", "Body001")
doc.recompute()

body.Placement = App.Placement(V(0, 0, -23), App.Rotation(V(0, 0, 1), 0))
boolean = body2.newObject("PartDesign::Boolean", "Boolean")
boolean.Type = "Fuse"
boolean.addObjects([body])

doc.recompute()
